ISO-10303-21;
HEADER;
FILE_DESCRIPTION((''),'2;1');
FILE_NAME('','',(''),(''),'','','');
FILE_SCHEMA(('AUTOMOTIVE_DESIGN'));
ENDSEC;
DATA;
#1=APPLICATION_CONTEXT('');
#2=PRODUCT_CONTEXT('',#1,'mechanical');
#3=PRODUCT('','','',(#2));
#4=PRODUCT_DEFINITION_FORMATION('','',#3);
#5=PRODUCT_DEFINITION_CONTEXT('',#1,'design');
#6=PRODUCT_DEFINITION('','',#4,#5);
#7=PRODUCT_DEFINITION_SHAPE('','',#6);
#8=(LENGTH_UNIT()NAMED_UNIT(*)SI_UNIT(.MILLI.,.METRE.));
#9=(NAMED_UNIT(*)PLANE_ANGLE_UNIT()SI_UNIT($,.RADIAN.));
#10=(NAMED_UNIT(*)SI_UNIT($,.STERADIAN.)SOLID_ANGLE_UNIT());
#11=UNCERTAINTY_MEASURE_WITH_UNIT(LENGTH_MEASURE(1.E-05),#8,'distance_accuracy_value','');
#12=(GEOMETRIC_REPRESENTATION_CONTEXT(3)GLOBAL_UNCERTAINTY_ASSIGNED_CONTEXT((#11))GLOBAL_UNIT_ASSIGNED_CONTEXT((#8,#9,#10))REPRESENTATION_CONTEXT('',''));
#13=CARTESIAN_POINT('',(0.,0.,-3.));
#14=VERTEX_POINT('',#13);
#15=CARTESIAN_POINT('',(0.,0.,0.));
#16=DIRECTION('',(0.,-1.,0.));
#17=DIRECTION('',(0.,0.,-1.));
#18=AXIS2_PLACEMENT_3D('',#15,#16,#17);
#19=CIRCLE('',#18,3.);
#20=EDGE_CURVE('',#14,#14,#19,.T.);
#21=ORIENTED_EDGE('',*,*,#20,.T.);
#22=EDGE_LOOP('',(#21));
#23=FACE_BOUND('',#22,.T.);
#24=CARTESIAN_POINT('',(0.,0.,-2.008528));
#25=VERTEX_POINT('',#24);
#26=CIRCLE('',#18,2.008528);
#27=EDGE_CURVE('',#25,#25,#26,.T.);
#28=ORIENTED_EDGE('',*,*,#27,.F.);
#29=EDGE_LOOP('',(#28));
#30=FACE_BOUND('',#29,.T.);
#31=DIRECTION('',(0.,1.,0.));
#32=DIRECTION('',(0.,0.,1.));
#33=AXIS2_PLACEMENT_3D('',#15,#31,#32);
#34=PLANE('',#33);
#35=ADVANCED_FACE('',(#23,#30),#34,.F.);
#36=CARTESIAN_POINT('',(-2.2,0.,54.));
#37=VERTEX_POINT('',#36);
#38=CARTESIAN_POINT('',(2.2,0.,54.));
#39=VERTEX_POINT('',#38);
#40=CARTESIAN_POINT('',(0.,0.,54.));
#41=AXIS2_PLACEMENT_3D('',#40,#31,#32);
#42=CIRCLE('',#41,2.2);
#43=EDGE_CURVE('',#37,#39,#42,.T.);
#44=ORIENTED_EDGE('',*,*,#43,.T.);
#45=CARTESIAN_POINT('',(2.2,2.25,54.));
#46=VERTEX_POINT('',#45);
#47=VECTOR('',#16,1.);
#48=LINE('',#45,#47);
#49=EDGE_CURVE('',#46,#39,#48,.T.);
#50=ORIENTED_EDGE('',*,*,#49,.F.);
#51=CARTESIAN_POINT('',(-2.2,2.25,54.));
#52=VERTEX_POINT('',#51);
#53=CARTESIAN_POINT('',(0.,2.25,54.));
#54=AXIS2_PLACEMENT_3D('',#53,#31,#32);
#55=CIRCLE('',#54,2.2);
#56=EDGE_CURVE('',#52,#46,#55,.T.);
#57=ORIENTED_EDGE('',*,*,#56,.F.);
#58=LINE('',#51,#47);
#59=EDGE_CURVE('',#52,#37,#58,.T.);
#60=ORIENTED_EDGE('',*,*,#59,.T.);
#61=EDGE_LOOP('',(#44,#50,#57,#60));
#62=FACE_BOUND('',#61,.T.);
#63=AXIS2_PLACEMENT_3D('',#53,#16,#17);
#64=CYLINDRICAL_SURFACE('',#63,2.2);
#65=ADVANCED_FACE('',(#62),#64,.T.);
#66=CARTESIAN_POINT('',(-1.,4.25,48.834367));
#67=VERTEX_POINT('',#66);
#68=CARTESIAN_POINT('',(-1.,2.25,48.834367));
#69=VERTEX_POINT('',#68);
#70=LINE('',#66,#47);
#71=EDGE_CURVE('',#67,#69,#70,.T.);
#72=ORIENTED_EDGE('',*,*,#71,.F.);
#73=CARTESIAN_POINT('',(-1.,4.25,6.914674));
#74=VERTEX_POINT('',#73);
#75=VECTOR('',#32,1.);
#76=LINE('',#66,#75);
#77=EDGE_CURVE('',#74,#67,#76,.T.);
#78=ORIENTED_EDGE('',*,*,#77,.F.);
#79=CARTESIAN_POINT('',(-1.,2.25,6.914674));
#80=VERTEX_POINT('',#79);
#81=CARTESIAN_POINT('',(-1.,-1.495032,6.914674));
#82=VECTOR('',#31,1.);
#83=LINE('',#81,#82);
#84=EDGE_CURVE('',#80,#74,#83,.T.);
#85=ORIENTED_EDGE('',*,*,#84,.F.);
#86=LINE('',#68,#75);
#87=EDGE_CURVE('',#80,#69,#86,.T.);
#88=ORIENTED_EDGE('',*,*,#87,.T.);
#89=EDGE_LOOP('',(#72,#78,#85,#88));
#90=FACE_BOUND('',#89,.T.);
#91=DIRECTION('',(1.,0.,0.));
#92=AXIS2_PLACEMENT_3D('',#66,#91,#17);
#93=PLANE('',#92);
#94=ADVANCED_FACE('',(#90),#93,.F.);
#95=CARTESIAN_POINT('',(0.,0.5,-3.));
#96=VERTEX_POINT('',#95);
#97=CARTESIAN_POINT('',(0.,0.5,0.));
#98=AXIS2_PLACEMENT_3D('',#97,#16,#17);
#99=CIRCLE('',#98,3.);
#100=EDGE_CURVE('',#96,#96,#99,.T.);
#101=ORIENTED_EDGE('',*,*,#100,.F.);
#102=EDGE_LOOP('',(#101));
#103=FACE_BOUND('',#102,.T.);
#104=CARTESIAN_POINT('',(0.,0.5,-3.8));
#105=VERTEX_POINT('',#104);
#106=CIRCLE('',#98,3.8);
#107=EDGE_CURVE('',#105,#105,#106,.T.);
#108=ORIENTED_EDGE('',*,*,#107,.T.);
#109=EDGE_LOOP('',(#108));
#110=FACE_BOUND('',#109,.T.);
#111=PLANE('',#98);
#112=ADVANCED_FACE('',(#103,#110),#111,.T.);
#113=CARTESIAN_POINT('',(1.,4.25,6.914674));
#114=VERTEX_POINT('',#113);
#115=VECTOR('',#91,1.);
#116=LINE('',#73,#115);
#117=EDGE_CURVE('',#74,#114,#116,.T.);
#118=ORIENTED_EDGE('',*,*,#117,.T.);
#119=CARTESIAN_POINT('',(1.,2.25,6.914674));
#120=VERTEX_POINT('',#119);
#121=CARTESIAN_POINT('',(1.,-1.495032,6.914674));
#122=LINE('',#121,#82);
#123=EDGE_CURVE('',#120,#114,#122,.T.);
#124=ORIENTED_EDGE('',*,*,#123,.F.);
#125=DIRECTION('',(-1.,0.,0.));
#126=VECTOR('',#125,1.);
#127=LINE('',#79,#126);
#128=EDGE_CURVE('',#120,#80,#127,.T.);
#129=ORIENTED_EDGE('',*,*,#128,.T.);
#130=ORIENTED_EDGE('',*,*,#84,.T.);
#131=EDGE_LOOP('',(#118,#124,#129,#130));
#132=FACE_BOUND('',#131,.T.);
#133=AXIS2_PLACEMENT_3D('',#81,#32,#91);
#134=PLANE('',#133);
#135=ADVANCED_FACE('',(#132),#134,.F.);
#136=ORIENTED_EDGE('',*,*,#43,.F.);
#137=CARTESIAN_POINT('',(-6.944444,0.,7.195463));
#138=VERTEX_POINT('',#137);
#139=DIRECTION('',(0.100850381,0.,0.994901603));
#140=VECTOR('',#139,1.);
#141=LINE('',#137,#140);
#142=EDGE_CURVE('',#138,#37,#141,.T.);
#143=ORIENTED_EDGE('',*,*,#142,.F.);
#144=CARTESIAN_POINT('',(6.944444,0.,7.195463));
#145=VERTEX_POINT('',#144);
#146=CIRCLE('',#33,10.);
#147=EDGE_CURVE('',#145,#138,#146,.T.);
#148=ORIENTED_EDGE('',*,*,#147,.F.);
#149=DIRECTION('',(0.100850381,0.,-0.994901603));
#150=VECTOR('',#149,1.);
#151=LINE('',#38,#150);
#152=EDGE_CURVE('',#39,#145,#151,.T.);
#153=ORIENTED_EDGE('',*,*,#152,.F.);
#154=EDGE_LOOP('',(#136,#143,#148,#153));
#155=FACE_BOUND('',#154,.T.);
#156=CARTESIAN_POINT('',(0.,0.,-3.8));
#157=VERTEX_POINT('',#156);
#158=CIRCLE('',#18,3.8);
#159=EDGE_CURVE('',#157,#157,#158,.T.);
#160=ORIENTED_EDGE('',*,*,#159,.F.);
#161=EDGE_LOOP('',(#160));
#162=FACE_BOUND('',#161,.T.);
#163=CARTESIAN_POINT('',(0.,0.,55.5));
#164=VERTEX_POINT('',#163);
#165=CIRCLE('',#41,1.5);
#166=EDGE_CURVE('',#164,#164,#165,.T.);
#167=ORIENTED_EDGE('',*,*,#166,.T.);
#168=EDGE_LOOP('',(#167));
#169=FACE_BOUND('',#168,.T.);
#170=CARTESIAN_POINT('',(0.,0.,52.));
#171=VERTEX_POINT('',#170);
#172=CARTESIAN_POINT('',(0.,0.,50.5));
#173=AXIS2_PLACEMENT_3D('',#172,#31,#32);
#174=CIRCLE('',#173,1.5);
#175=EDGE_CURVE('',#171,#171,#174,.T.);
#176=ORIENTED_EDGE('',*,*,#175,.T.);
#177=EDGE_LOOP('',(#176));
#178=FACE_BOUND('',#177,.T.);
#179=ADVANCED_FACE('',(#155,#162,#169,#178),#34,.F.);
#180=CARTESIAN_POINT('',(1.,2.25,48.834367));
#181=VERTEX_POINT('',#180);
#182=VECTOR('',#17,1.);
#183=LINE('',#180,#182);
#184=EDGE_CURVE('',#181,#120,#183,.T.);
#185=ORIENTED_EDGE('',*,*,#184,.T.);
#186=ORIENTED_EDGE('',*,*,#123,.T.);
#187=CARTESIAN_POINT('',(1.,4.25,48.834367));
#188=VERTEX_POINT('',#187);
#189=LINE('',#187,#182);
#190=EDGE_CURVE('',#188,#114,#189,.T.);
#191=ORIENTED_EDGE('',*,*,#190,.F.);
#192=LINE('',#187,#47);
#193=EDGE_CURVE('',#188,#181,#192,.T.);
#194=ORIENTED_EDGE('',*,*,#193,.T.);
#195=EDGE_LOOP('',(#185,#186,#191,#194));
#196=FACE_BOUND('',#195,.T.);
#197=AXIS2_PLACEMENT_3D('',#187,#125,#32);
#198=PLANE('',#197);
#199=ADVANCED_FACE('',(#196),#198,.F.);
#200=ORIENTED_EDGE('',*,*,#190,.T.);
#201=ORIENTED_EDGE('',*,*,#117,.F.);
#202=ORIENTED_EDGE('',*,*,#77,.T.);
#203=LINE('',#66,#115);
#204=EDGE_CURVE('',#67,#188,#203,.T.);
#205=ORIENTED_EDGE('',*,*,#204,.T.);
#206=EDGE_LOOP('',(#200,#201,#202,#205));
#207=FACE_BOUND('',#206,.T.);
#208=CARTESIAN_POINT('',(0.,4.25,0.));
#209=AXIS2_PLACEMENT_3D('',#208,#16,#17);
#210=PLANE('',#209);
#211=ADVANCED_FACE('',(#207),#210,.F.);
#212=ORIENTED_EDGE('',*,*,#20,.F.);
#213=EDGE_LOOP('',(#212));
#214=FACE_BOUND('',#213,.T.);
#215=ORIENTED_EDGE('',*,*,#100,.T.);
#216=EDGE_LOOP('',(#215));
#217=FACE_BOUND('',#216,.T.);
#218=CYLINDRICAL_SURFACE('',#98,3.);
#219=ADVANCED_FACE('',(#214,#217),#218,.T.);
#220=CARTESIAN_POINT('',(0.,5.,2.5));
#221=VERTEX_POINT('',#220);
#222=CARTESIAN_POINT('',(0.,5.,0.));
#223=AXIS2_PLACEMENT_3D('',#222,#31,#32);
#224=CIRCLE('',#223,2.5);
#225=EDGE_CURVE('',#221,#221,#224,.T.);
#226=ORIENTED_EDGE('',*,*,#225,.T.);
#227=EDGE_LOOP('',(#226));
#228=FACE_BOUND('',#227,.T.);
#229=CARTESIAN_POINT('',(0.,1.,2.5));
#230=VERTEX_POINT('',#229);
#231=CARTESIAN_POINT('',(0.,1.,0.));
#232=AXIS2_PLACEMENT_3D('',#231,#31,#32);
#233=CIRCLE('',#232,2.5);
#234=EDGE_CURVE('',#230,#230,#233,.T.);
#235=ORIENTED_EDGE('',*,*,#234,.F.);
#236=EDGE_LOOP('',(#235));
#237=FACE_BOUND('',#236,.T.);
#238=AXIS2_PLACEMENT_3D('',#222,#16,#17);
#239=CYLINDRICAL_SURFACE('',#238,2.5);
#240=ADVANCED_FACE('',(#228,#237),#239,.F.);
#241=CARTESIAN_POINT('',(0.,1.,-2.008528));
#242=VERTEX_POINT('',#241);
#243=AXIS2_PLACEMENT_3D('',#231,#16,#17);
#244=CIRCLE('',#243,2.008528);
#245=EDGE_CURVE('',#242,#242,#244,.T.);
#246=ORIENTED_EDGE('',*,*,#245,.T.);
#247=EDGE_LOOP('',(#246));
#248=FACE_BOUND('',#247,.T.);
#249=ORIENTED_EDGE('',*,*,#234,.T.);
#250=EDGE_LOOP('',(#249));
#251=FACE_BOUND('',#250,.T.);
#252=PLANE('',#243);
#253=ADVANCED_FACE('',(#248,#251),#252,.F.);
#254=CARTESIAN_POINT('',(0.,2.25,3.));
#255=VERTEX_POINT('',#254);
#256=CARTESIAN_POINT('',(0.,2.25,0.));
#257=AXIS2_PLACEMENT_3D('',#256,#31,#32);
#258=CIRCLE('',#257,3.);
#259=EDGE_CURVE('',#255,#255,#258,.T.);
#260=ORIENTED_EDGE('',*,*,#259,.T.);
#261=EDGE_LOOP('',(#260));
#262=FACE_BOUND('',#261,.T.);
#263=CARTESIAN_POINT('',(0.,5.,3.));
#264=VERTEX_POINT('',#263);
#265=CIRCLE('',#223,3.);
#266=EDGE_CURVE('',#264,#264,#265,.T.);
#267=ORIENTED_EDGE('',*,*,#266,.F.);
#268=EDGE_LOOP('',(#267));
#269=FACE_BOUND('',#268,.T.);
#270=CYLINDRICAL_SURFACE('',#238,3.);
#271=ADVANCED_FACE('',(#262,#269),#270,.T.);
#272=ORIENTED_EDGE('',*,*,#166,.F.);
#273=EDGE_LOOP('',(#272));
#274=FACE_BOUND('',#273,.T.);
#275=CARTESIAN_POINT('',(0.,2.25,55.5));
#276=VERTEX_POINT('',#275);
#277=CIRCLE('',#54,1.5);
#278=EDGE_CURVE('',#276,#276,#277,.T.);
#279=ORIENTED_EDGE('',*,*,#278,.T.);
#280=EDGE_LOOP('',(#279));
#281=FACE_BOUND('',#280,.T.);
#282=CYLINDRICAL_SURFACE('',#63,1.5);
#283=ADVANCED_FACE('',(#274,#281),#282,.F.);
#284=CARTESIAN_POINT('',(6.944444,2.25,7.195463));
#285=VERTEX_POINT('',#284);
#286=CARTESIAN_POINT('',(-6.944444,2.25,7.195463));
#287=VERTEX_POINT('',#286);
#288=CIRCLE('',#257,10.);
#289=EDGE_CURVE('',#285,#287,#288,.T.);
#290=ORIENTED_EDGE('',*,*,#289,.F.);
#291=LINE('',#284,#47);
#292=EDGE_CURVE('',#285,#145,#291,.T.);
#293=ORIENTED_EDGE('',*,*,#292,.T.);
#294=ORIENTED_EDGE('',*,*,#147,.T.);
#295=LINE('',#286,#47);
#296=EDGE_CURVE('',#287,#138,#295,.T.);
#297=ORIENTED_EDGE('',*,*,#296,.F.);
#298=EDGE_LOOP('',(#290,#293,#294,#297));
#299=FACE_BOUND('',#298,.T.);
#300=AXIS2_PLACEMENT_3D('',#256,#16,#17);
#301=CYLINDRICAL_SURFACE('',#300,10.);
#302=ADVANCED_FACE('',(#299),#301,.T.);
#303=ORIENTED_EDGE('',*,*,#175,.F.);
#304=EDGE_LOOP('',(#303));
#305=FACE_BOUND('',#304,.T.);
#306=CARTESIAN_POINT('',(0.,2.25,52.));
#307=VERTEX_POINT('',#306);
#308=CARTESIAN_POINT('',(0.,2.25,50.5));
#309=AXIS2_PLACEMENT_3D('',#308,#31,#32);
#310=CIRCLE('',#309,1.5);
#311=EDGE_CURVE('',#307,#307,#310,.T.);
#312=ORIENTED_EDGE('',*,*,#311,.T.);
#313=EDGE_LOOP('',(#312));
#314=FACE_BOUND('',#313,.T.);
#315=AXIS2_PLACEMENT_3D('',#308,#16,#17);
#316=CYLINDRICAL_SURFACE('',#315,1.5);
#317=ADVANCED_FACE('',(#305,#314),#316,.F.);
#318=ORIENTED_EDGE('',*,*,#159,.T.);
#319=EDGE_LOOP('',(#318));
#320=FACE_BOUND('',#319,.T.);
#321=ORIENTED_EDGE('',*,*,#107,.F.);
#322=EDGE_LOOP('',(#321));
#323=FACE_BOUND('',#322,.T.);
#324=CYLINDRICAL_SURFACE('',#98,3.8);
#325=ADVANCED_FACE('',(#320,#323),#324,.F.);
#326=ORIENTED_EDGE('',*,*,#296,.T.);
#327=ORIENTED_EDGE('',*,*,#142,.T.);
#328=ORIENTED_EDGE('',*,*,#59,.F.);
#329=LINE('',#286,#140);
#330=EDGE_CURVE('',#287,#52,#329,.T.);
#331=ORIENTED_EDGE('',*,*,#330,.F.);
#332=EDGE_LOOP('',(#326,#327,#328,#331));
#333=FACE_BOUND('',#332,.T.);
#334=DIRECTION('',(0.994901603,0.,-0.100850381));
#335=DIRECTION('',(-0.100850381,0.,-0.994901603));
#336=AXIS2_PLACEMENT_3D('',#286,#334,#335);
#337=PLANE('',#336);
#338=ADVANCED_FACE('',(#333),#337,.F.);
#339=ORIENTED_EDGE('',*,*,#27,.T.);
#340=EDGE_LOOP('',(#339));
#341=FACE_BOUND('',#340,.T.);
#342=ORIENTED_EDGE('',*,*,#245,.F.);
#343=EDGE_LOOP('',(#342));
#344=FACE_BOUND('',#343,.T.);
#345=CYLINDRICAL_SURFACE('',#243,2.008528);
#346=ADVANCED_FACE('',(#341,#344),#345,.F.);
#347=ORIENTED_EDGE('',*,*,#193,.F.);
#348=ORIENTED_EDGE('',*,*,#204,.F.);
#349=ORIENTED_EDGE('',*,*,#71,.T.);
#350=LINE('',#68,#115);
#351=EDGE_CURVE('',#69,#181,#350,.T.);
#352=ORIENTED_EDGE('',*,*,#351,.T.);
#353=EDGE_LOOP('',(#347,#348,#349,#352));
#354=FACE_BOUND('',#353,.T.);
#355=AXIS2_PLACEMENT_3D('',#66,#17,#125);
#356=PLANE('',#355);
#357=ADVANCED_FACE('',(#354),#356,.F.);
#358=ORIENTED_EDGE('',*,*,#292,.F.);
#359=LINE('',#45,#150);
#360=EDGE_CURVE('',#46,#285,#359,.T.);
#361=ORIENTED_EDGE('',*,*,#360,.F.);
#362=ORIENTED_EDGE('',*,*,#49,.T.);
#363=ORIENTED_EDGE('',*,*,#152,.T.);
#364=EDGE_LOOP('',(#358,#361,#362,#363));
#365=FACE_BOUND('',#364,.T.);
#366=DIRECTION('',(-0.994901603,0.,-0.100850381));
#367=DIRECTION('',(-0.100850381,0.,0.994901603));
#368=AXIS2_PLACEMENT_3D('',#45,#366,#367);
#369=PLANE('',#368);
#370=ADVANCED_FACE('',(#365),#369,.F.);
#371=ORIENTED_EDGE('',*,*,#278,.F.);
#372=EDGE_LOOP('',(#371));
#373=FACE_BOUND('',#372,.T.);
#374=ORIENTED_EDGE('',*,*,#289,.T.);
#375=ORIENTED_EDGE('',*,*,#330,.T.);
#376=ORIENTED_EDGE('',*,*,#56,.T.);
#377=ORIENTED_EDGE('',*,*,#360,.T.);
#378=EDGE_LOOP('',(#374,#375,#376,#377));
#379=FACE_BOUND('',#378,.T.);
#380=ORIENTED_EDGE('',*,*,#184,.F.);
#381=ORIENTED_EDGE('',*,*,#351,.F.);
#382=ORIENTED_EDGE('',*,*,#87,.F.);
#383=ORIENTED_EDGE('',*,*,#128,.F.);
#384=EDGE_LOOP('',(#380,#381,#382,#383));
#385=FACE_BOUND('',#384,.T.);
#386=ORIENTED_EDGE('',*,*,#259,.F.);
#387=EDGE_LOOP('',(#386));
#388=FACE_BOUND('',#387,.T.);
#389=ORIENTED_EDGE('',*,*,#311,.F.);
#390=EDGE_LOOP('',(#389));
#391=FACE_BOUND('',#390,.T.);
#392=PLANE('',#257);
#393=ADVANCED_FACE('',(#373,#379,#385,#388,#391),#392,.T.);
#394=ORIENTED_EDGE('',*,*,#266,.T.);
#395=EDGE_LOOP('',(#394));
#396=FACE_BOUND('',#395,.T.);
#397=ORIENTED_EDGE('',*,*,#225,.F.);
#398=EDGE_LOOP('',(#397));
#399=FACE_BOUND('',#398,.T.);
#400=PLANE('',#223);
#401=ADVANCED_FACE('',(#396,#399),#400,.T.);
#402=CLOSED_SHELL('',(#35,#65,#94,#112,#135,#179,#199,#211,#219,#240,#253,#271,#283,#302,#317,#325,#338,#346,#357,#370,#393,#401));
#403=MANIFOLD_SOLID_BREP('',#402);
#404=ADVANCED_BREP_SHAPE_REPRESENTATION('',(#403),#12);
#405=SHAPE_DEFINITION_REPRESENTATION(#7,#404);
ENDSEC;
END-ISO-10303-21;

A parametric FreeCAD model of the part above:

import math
import FreeCAD as App
import Part
import Sketcher
from FreeCAD import Vector
Q = App.Units.Quantity

doc = App.newDocument("Part")
params = doc.addObject("Spreadsheet::Sheet", "Params")
for row, (alias, value) in enumerate([
    ("sketch1_diameter", "3 mm"),
    ("sketch1_diameter2", "6 mm"),
    ("sketch1_radius", "10 mm"),
    ("sketch1_radius2", "2.2 mm"),
    ("pad1_length", "2.25 mm"),
    ("sketch2_radius", "2.360001 mm"),
    ("pad2_length", "2.25 mm"),
    ("sketch3_diameter", "6 mm"),
    ("pad3_length", "1 mm"),
    ("sketch4_diameter", "6 mm"),
    ("sketch4_diameter2", "7.6 mm"),
    ("pocket1_length", "0.5 mm"),
    ("sketch5_width", "2 mm"),
    ("pad4_length", "2 mm"),
    ("pocket2_length", "2.25 mm"),
    ("sketch7_diameter", "6 mm"),
    ("sketch7_diameter2", "5 mm"),
    ("pad5_length", "4 mm"),
    ("sketch8_width", "2 mm"),
    ("pocket3_length", "2 mm"),
], start=1):
    params.set(f"A{row}", alias)
    params.set(f"B{row}", "=" + value)
    params.setAlias(f"B{row}", alias)

body = doc.addObject("PartDesign::Body", "Body")

sketch1 = body.newObject("Sketcher::SketchObject", "Sketch")
sketch1.AttachmentSupport = (doc.getObject("XZ_Plane"), [""])
sketch1.MapMode = "FlatFace"
sketch1.addGeometry([
    Part.LineSegment(Vector(2.2, 54, 0), Vector(6.9, 7.2, 0)),
    Part.ArcOfCircle(Part.Circle(Vector(0, 0, 0), Vector(0, 0, 1), 10), math.radians(134), math.radians(406)),
    Part.LineSegment(Vector(-6.9, 7.2, 0), Vector(-2.2, 54, 0)),
    Part.ArcOfCircle(Part.Circle(Vector(0, 54, 0), Vector(0, 0, 1), 2.2), math.radians(0), math.radians(180)),
    Part.Circle(Vector(0, 54, 0), Vector(0, 0, 1), 1.5),
    Part.Circle(Vector(0, 50.5, 0), Vector(0, 0, 1), 1.5),
    Part.Circle(Vector(0, 0, 0), Vector(0, 0, 1), 3),
], False)
sketch1.addConstraint([
    Sketcher.Constraint("Coincident", 0, 2, 1, 2),
    Sketcher.Constraint("Coincident", 1, 1, 2, 1),
    Sketcher.Constraint("Coincident", 2, 2, 3, 2),
    Sketcher.Constraint("Coincident", 3, 1, 0, 1),
    Sketcher.Constraint("Coincident", 1, 3, -1, 1),
    Sketcher.Constraint("Coincident", 6, 3, -1, 1),
    Sketcher.Constraint("Coincident", 4, 3, 3, 3),
    Sketcher.Constraint("Equal", 4, 5),
    Sketcher.Constraint("Symmetric", 2, 2, 3, 1, -2),
    Sketcher.Constraint("PointOnObject", 5, 3, -2),
    Sketcher.Constraint("Horizontal", 0, 2, 1, 1),
    Sketcher.Constraint("Horizontal", 4, 3, 2, 2),
    Sketcher.Constraint("Diameter", 4, Q("3 mm")),
    Sketcher.Constraint("Diameter", 6, Q("6 mm")),
    Sketcher.Constraint("Radius", 1, Q("10 mm")),
    Sketcher.Constraint("Radius", 3, Q("2.2 mm")),
    Sketcher.Constraint("DistanceY", -1, 1, 3, 3, Q("54 mm")),
    Sketcher.Constraint("DistanceY", -1, 1, 5, 3, Q("50.5 mm")),
    Sketcher.Constraint("DistanceX", 1, 1, 0, 2, Q("13.888889 mm")),
])
sketch1.setExpression("Constraints[12]", "Params.sketch1_diameter")
sketch1.setExpression("Constraints[13]", "Params.sketch1_diameter2")
sketch1.setExpression("Constraints[14]", "Params.sketch1_radius")
sketch1.setExpression("Constraints[15]", "Params.sketch1_radius2")
pad1 = body.newObject("PartDesign::Pad", "Pad")
pad1.Profile = sketch1
pad1.setExpression("Length", "Params.pad1_length")
pad1.Reversed = True

sketch2 = body.newObject("Sketcher::SketchObject", "Sketch001")
sketch2.AttachmentSupport = (doc.getObject("XZ_Plane"), [""])
sketch2.MapMode = "FlatFace"
sketch2.AttachmentOffset = App.Placement(Vector(0, 0, -2.25), App.Rotation())
sketch2.addGeometry([
    Part.Circle(Vector(0, 0, 0), Vector(0, 0, 1), 3.88),
    Part.LineSegment(Vector(2.35, -0.22, 0), Vector(1.96, 0, 0)),
    Part.LineSegment(Vector(1.96, 0, 0), Vector(2.35, 0.22, 0)),
    Part.ArcOfCircle(Part.Circle(Vector(0, 0, 0), Vector(0, 0, 1), 2.36), math.radians(5.46), math.radians(8.94)),
    Part.LineSegment(Vector(2.33, 0.37, 0), Vector(1.9, 0.49, 0)),
    Part.LineSegment(Vector(1.9, 0.49, 0), Vector(2.22, 0.8, 0)),
    Part.ArcOfCircle(Part.Circle(Vector(0, 0, 0), Vector(0, 0, 1), 2.36), math.radians(19.86), math.radians(23.34)),
    Part.LineSegment(Vector(2.17, 0.93, 0), Vector(1.72, 0.94, 0)),
    Part.LineSegment(Vector(1.72, 0.94, 0), Vector(1.95, 1.33, 0)),
    Part.ArcOfCircle(Part.Circle(Vector(0, 0, 0), Vector(0, 0, 1), 2.36), math.radians(34.26), math.radians(37.74)),
    Part.LineSegment(Vector(1.87, 1.44, 0), Vector(1.43, 1.34, 0)),
    Part.LineSegment(Vector(1.43, 1.34, 0), Vector(1.56, 1.77, 0)),
    Part.ArcOfCircle(Part.Circle(Vector(0, 0, 0), Vector(0, 0, 1), 2.36), math.radians(48.66), math.radians(52.14)),
    Part.LineSegment(Vector(1.45, 1.86, 0), Vector(1.05, 1.65, 0)),
    Part.LineSegment(Vector(1.05, 1.65, 0), Vector(1.07, 2.1, 0)),
    Part.ArcOfCircle(Part.Circle(Vector(0, 0, 0), Vector(0, 0, 1), 2.36), math.radians(63.06), math.radians(66.54)),
    Part.LineSegment(Vector(0.94, 2.16, 0), Vector(0.61, 1.86, 0)),
    Part.LineSegment(Vector(0.61, 1.86, 0), Vector(0.51, 2.3, 0)),
    Part.ArcOfCircle(Part.Circle(Vector(0, 0, 0), Vector(0, 0, 1), 2.36), math.radians(77.46), math.radians(80.94)),
    Part.LineSegment(Vector(0.37, 2.33, 0), Vector(0.12, 1.96, 0)),
    Part.LineSegment(Vector(0.12, 1.96, 0), Vector(-0.08, 2.36, 0)),
    Part.ArcOfCircle(Part.Circle(Vector(0, 0, 0), Vector(0, 0, 1), 2.36), math.radians(91.86), math.radians(95.34)),
    Part.LineSegment(Vector(-0.22, 2.35, 0), Vector(-0.37, 1.93, 0)),
    Part.LineSegment(Vector(-0.37, 1.93, 0), Vector(-0.66, 2.27, 0)),
    Part.ArcOfCircle(Part.Circle(Vector(0, 0, 0), Vector(0, 0, 1), 2.36), math.radians(106.26), math.radians(109.74)),
    Part.LineSegment(Vector(-0.8, 2.22, 0), Vector(-0.83, 1.77, 0)),
    Part.LineSegment(Vector(-0.83, 1.77, 0), Vector(-1.2, 2.03, 0)),
    Part.ArcOfCircle(Part.Circle(Vector(0, 0, 0), Vector(0, 0, 1), 2.36), math.radians(120.66), math.radians(124.14)),
    Part.LineSegment(Vector(-1.32, 1.95, 0), Vector(-1.25, 1.51, 0)),
    Part.LineSegment(Vector(-1.25, 1.51, 0), Vector(-1.67, 1.67, 0)),
    Part.ArcOfCircle(Part.Circle(Vector(0, 0, 0), Vector(0, 0, 1), 2.36), math.radians(135.06), math.radians(138.54)),
    Part.LineSegment(Vector(-1.77, 1.56, 0), Vector(-1.59, 1.15, 0)),
    Part.LineSegment(Vector(-1.59, 1.15, 0), Vector(-2.03, 1.2, 0)),
    Part.ArcOfCircle(Part.Circle(Vector(0, 0, 0), Vector(0, 0, 1), 2.36), math.radians(149.46), math.radians(152.94)),
    Part.LineSegment(Vector(-2.1, 1.07, 0), Vector(-1.82, 0.72, 0)),
    Part.LineSegment(Vector(-1.82, 0.72, 0), Vector(-2.27, 0.66, 0)),
    Part.ArcOfCircle(Part.Circle(Vector(0, 0, 0), Vector(0, 0, 1), 2.36), math.radians(163.86), math.radians(167.34)),
    Part.LineSegment(Vector(-2.3, 0.52, 0), Vector(-1.94, 0.25, 0)),
    Part.LineSegment(Vector(-1.94, 0.25, 0), Vector(-2.36, 0.07, 0)),
    Part.ArcOfCircle(Part.Circle(Vector(0, 0, 0), Vector(0, 0, 1), 2.36), math.radians(178.26), math.radians(181.74)),
    Part.LineSegment(Vector(-2.36, -0.07, 0), Vector(-1.94, -0.25, 0)),
    Part.LineSegment(Vector(-1.94, -0.25, 0), Vector(-2.3, -0.52, 0)),
    Part.ArcOfCircle(Part.Circle(Vector(0, 0, 0), Vector(0, 0, 1), 2.36), math.radians(-167.34), math.radians(-163.86)),
    Part.LineSegment(Vector(-2.27, -0.66, 0), Vector(-1.82, -0.72, 0)),
    Part.LineSegment(Vector(-1.82, -0.72, 0), Vector(-2.1, -1.07, 0)),
    Part.ArcOfCircle(Part.Circle(Vector(0, 0, 0), Vector(0, 0, 1), 2.36), math.radians(-152.94), math.radians(-149.46)),
    Part.LineSegment(Vector(-2.03, -1.2, 0), Vector(-1.59, -1.15, 0)),
    Part.LineSegment(Vector(-1.59, -1.15, 0), Vector(-1.77, -1.56, 0)),
    Part.ArcOfCircle(Part.Circle(Vector(0, 0, 0), Vector(0, 0, 1), 2.36), math.radians(-138.54), math.radians(-135.06)),
    Part.LineSegment(Vector(-1.67, -1.67, 0), Vector(-1.25, -1.51, 0)),
    Part.LineSegment(Vector(-1.25, -1.51, 0), Vector(-1.32, -1.95, 0)),
    Part.ArcOfCircle(Part.Circle(Vector(0, 0, 0), Vector(0, 0, 1), 2.36), math.radians(-124.14), math.radians(-120.66)),
    Part.LineSegment(Vector(-1.2, -2.03, 0), Vector(-0.83, -1.77, 0)),
    Part.LineSegment(Vector(-0.83, -1.77, 0), Vector(-0.8, -2.22, 0)),
    Part.ArcOfCircle(Part.Circle(Vector(0, 0, 0), Vector(0, 0, 1), 2.36), math.radians(-109.74), math.radians(-106.26)),
    Part.LineSegment(Vector(-0.66, -2.27, 0), Vector(-0.37, -1.93, 0)),
    Part.LineSegment(Vector(-0.37, -1.93, 0), Vector(-0.22, -2.35, 0)),
    Part.ArcOfCircle(Part.Circle(Vector(0, 0, 0), Vector(0, 0, 1), 2.36), math.radians(-95.34), math.radians(-91.86)),
    Part.LineSegment(Vector(-0.08, -2.36, 0), Vector(0.12, -1.96, 0)),
    Part.LineSegment(Vector(0.12, -1.96, 0), Vector(0.37, -2.33, 0)),
    Part.ArcOfCircle(Part.Circle(Vector(0, 0, 0), Vector(0, 0, 1), 2.36), math.radians(-80.94), math.radians(-77.46)),
    Part.LineSegment(Vector(0.51, -2.3, 0), Vector(0.61, -1.86, 0)),
    Part.LineSegment(Vector(0.61, -1.86, 0), Vector(0.94, -2.16, 0)),
    Part.ArcOfCircle(Part.Circle(Vector(0, 0, 0), Vector(0, 0, 1), 2.36), math.radians(-66.54), math.radians(-63.06)),
    Part.LineSegment(Vector(1.07, -2.1, 0), Vector(1.05, -1.65, 0)),
    Part.LineSegment(Vector(1.05, -1.65, 0), Vector(1.45, -1.86, 0)),
    Part.ArcOfCircle(Part.Circle(Vector(0, 0, 0), Vector(0, 0, 1), 2.36), math.radians(-52.14), math.radians(-48.66)),
    Part.LineSegment(Vector(1.56, -1.77, 0), Vector(1.43, -1.34, 0)),
    Part.LineSegment(Vector(1.43, -1.34, 0), Vector(1.87, -1.44, 0)),
    Part.ArcOfCircle(Part.Circle(Vector(0, 0, 0), Vector(0, 0, 1), 2.36), math.radians(-37.74), math.radians(-34.26)),
    Part.LineSegment(Vector(1.95, -1.33, 0), Vector(1.72, -0.94, 0)),
    Part.LineSegment(Vector(1.72, -0.94, 0), Vector(2.17, -0.93, 0)),
    Part.ArcOfCircle(Part.Circle(Vector(0, 0, 0), Vector(0, 0, 1), 2.36), math.radians(-23.34), math.radians(-19.86)),
    Part.LineSegment(Vector(2.22, -0.8, 0), Vector(1.9, -0.49, 0)),
    Part.LineSegment(Vector(1.9, -0.49, 0), Vector(2.33, -0.37, 0)),
    Part.ArcOfCircle(Part.Circle(Vector(0, 0, 0), Vector(0, 0, 1), 2.36), math.radians(-8.94), math.radians(-5.46)),
], False)
sketch2.addConstraint([
    Sketcher.Constraint("Coincident", 1, 2, 2, 1),
    Sketcher.Constraint("Coincident", 2, 2, 3, 1),
    Sketcher.Constraint("Coincident", 3, 2, 4, 1),
    Sketcher.Constraint("Coincident", 4, 2, 5, 1),
    Sketcher.Constraint("Coincident", 5, 2, 6, 1),
    Sketcher.Constraint("Coincident", 6, 2, 7, 1),
    Sketcher.Constraint("Coincident", 7, 2, 8, 1),
    Sketcher.Constraint("Coincident", 8, 2, 9, 1),
    Sketcher.Constraint("Coincident", 9, 2, 10, 1),
    Sketcher.Constraint("Coincident", 10, 2, 11, 1),
    Sketcher.Constraint("Coincident", 11, 2, 12, 1),
    Sketcher.Constraint("Coincident", 12, 2, 13, 1),
    Sketcher.Constraint("Coincident", 13, 2, 14, 1),
    Sketcher.Constraint("Coincident", 14, 2, 15, 1),
    Sketcher.Constraint("Coincident", 15, 2, 16, 1),
    Sketcher.Constraint("Coincident", 16, 2, 17, 1),
    Sketcher.Constraint("Coincident", 17, 2, 18, 1),
    Sketcher.Constraint("Coincident", 18, 2, 19, 1),
    Sketcher.Constraint("Coincident", 19, 2, 20, 1),
    Sketcher.Constraint("Coincident", 20, 2, 21, 1),
    Sketcher.Constraint("Coincident", 21, 2, 22, 1),
    Sketcher.Constraint("Coincident", 22, 2, 23, 1),
    Sketcher.Constraint("Coincident", 23, 2, 24, 1),
    Sketcher.Constraint("Coincident", 24, 2, 25, 1),
    Sketcher.Constraint("Coincident", 25, 2, 26, 1),
    Sketcher.Constraint("Coincident", 26, 2, 27, 1),
    Sketcher.Constraint("Coincident", 27, 2, 28, 1),
    Sketcher.Constraint("Coincident", 28, 2, 29, 1),
    Sketcher.Constraint("Coincident", 29, 2, 30, 1),
    Sketcher.Constraint("Coincident", 30, 2, 31, 1),
    Sketcher.Constraint("Coincident", 31, 2, 32, 1),
    Sketcher.Constraint("Coincident", 32, 2, 33, 1),
    Sketcher.Constraint("Coincident", 33, 2, 34, 1),
    Sketcher.Constraint("Coincident", 34, 2, 35, 1),
    Sketcher.Constraint("Coincident", 35, 2, 36, 1),
    Sketcher.Constraint("Coincident", 36, 2, 37, 1),
    Sketcher.Constraint("Coincident", 37, 2, 38, 1),
    Sketcher.Constraint("Coincident", 38, 2, 39, 1),
    Sketcher.Constraint("Coincident", 39, 2, 40, 1),
    Sketcher.Constraint("Coincident", 40, 2, 41, 1),
    Sketcher.Constraint("Coincident", 41, 2, 42, 1),
    Sketcher.Constraint("Coincident", 42, 2, 43, 1),
    Sketcher.Constraint("Coincident", 43, 2, 44, 1),
    Sketcher.Constraint("Coincident", 44, 2, 45, 1),
    Sketcher.Constraint("Coincident", 45, 2, 46, 1),
    Sketcher.Constraint("Coincident", 46, 2, 47, 1),
    Sketcher.Constraint("Coincident", 47, 2, 48, 1),
    Sketcher.Constraint("Coincident", 48, 2, 49, 1),
    Sketcher.Constraint("Coincident", 49, 2, 50, 1),
    Sketcher.Constraint("Coincident", 50, 2, 51, 1),
    Sketcher.Constraint("Coincident", 51, 2, 52, 1),
    Sketcher.Constraint("Coincident", 52, 2, 53, 1),
    Sketcher.Constraint("Coincident", 53, 2, 54, 1),
    Sketcher.Constraint("Coincident", 54, 2, 55, 1),
    Sketcher.Constraint("Coincident", 55, 2, 56, 1),
    Sketcher.Constraint("Coincident", 56, 2, 57, 1),
    Sketcher.Constraint("Coincident", 57, 2, 58, 1),
    Sketcher.Constraint("Coincident", 58, 2, 59, 1),
    Sketcher.Constraint("Coincident", 59, 2, 60, 1),
    Sketcher.Constraint("Coincident", 60, 2, 61, 1),
    Sketcher.Constraint("Coincident", 61, 2, 62, 1),
    Sketcher.Constraint("Coincident", 62, 2, 63, 1),
    Sketcher.Constraint("Coincident", 63, 2, 64, 1),
    Sketcher.Constraint("Coincident", 64, 2, 65, 1),
    Sketcher.Constraint("Coincident", 65, 2, 66, 1),
    Sketcher.Constraint("Coincident", 66, 2, 67, 1),
    Sketcher.Constraint("Coincident", 67, 2, 68, 1),
    Sketcher.Constraint("Coincident", 68, 2, 69, 1),
    Sketcher.Constraint("Coincident", 69, 2, 70, 1),
    Sketcher.Constraint("Coincident", 70, 2, 71, 1),
    Sketcher.Constraint("Coincident", 71, 2, 72, 1),
    Sketcher.Constraint("Coincident", 72, 2, 73, 1),
    Sketcher.Constraint("Coincident", 73, 2, 74, 1),
    Sketcher.Constraint("Coincident", 74, 2, 75, 1),
    Sketcher.Constraint("Coincident", 75, 2, 1, 1),
    Sketcher.Constraint("Coincident", 0, 3, -1, 1),
    Sketcher.Constraint("Coincident", 3, 3, -1, 1),
    Sketcher.Constraint("Coincident", 6, 3, -1, 1),
    Sketcher.Constraint("Coincident", 9, 3, -1, 1),
    Sketcher.Constraint("Coincident", 12, 3, -1, 1),
    Sketcher.Constraint("Coincident", 15, 3, -1, 1),
    Sketcher.Constraint("Coincident", 18, 3, -1, 1),
    Sketcher.Constraint("Coincident", 21, 3, -1, 1),
    Sketcher.Constraint("Coincident", 24, 3, -1, 1),
    Sketcher.Constraint("Coincident", 27, 3, -1, 1),
    Sketcher.Constraint("Coincident", 30, 3, -1, 1),
    Sketcher.Constraint("Coincident", 33, 3, -1, 1),
    Sketcher.Constraint("Coincident", 36, 3, -1, 1),
    Sketcher.Constraint("Coincident", 39, 3, -1, 1),
    Sketcher.Constraint("Coincident", 42, 3, -1, 1),
    Sketcher.Constraint("Coincident", 45, 3, -1, 1),
    Sketcher.Constraint("Coincident", 48, 3, -1, 1),
    Sketcher.Constraint("Coincident", 51, 3, -1, 1),
    Sketcher.Constraint("Coincident", 54, 3, -1, 1),
    Sketcher.Constraint("Coincident", 57, 3, -1, 1),
    Sketcher.Constraint("Coincident", 60, 3, -1, 1),
    Sketcher.Constraint("Coincident", 63, 3, -1, 1),
    Sketcher.Constraint("Coincident", 66, 3, -1, 1),
    Sketcher.Constraint("Coincident", 69, 3, -1, 1),
    Sketcher.Constraint("Coincident", 72, 3, -1, 1),
    Sketcher.Constraint("Coincident", 75, 3, -1, 1),
    Sketcher.Constraint("Equal", 6, 9),
    Sketcher.Constraint("Equal", 9, 12),
    Sketcher.Constraint("Equal", 12, 15),
    Sketcher.Constraint("Equal", 15, 18),
    Sketcher.Constraint("Equal", 18, 21),
    Sketcher.Constraint("Equal", 21, 24),
    Sketcher.Constraint("Equal", 24, 27),
    Sketcher.Constraint("Equal", 27, 30),
    Sketcher.Constraint("Equal", 30, 33),
    Sketcher.Constraint("Equal", 33, 36),
    Sketcher.Constraint("Equal", 36, 39),
    Sketcher.Constraint("Equal", 39, 42),
    Sketcher.Constraint("Equal", 42, 45),
    Sketcher.Constraint("Equal", 45, 48),
    Sketcher.Constraint("Equal", 48, 51),
    Sketcher.Constraint("Equal", 51, 54),
    Sketcher.Constraint("Equal", 54, 57),
    Sketcher.Constraint("Equal", 57, 60),
    Sketcher.Constraint("Equal", 60, 63),
    Sketcher.Constraint("Equal", 63, 66),
    Sketcher.Constraint("Equal", 66, 69),
    Sketcher.Constraint("Equal", 69, 72),
    Sketcher.Constraint("Equal", 69, 75),
    Sketcher.Constraint("Symmetric", 37, 2, 40, 2, -1),
    Sketcher.Constraint("Symmetric", 34, 2, 43, 2, -1),
    Sketcher.Constraint("Symmetric", 31, 2, 46, 2, -1),
    Sketcher.Constraint("Symmetric", 28, 2, 49, 2, -1),
    Sketcher.Constraint("Symmetric", 25, 2, 52, 2, -1),
    Sketcher.Constraint("Symmetric", 22, 2, 55, 2, -1),
    Sketcher.Constraint("Symmetric", 19, 2, 58, 2, -1),
    Sketcher.Constraint("Symmetric", 16, 2, 61, 2, -1),
    Sketcher.Constraint("Symmetric", 13, 2, 64, 2, -1),
    Sketcher.Constraint("Symmetric", 10, 2, 67, 2, -1),
    Sketcher.Constraint("Symmetric", 7, 2, 70, 2, -1),
    Sketcher.Constraint("Symmetric", 4, 2, 73, 2, -1),
    Sketcher.Constraint("Symmetric", 3, 2, 74, 2, -1),
    Sketcher.Constraint("PointOnObject", 1, 2, -1),
    Sketcher.Constraint("Vertical", 38, 2, 39, 2),
    Sketcher.Constraint("Vertical", 36, 2, 41, 2),
    Sketcher.Constraint("Vertical", 35, 2, 42, 2),
    Sketcher.Constraint("Vertical", 33, 2, 44, 2),
    Sketcher.Constraint("Vertical", 32, 2, 45, 2),
    Sketcher.Constraint("Vertical", 30, 2, 47, 2),
    Sketcher.Constraint("Vertical", 29, 2, 48, 2),
    Sketcher.Constraint("Vertical", 27, 2, 50, 2),
    Sketcher.Constraint("Vertical", 26, 2, 51, 2),
    Sketcher.Constraint("Vertical", 24, 2, 53, 2),
    Sketcher.Constraint("Vertical", 23, 2, 54, 2),
    Sketcher.Constraint("Vertical", 21, 2, 56, 2),
    Sketcher.Constraint("Vertical", 20, 2, 57, 2),
    Sketcher.Constraint("Vertical", 18, 2, 59, 2),
    Sketcher.Constraint("Vertical", 17, 2, 60, 2),
    Sketcher.Constraint("Vertical", 15, 2, 62, 2),
    Sketcher.Constraint("Vertical", 14, 2, 63, 2),
    Sketcher.Constraint("Vertical", 12, 2, 65, 2),
    Sketcher.Constraint("Vertical", 11, 2, 66, 2),
    Sketcher.Constraint("Vertical", 9, 2, 68, 2),
    Sketcher.Constraint("Vertical", 8, 2, 69, 2),
    Sketcher.Constraint("Vertical", 6, 2, 71, 2),
    Sketcher.Constraint("Vertical", 5, 2, 72, 2),
    Sketcher.Constraint("Vertical", 2, 2, 75, 2),
    Sketcher.Constraint("Equal", 2, 4),
    Sketcher.Constraint("Equal", 4, 5),
    Sketcher.Constraint("Equal", 5, 7),
    Sketcher.Constraint("Equal", 7, 8),
    Sketcher.Constraint("Equal", 8, 10),
    Sketcher.Constraint("Equal", 10, 11),
    Sketcher.Constraint("Equal", 11, 13),
    Sketcher.Constraint("Equal", 13, 14),
    Sketcher.Constraint("Equal", 14, 16),
    Sketcher.Constraint("Equal", 16, 17),
    Sketcher.Constraint("Equal", 17, 19),
    Sketcher.Constraint("Equal", 19, 20),
    Sketcher.Constraint("Equal", 20, 22),
    Sketcher.Constraint("Equal", 22, 23),
    Sketcher.Constraint("Equal", 23, 25),
    Sketcher.Constraint("Equal", 25, 26),
    Sketcher.Constraint("Equal", 26, 28),
    Sketcher.Constraint("Equal", 28, 29),
    Sketcher.Constraint("Equal", 29, 31),
    Sketcher.Constraint("Equal", 31, 32),
    Sketcher.Constraint("Equal", 32, 34),
    Sketcher.Constraint("Equal", 34, 35),
    Sketcher.Constraint("Equal", 35, 37),
    Sketcher.Constraint("Equal", 37, 38),
    Sketcher.Constraint("Angle", 1, Q("150 deg")),
    Sketcher.Constraint("Angle", 16, Q("-138 deg")),
    Sketcher.Constraint("Angle", 17, Q("102 deg")),
    Sketcher.Constraint("Angle", 31, Q("-66 deg")),
    Sketcher.Constraint("Angle", 32, Q("174 deg")),
    Sketcher.Constraint("Radius", 3, Q("2.360001 mm")),
    Sketcher.Constraint("Angle", 4, Q("164.4 deg")),
    Sketcher.Constraint("Angle", 5, Q("44.4 deg")),
    Sketcher.Constraint("Angle", 7, Q("178.8 deg")),
    Sketcher.Constraint("Angle", 8, Q("58.8 deg")),
    Sketcher.Constraint("Angle", 10, Q("-166.8 deg")),
    Sketcher.Constraint("Angle", 11, Q("73.2 deg")),
    Sketcher.Constraint("Angle", 13, Q("-152.4 deg")),
    Sketcher.Constraint("Angle", 14, Q("87.6 deg")),
    Sketcher.Constraint("Angle", 19, Q("-123.6 deg")),
    Sketcher.Constraint("Angle", 20, Q("116.4 deg")),
    Sketcher.Constraint("Angle", 22, Q("-109.2 deg")),
    Sketcher.Constraint("Angle", 23, Q("130.8 deg")),
    Sketcher.Constraint("Angle", 25, Q("-94.8 deg")),
    Sketcher.Constraint("Angle", 26, Q("145.2 deg")),
    Sketcher.Constraint("Angle", 28, Q("-80.4 deg")),
    Sketcher.Constraint("Angle", 29, Q("159.6 deg")),
    Sketcher.Constraint("Angle", 34, Q("-51.6 deg")),
    Sketcher.Constraint("Angle", 35, Q("-171.6 deg")),
    Sketcher.Constraint("Angle", 37, Q("-37.2 deg")),
    Sketcher.Constraint("Angle", 38, Q("-157.2 deg")),
    Sketcher.Constraint("DistanceX", -1, 1, 1, 2, Q("1.96 mm")),
    Sketcher.Constraint("Diameter", 0, Q("7.759004 mm")),
])
sketch2.setExpression("Constraints[191]", "Params.sketch2_radius")
pad2 = body.newObject("PartDesign::Pad", "Pad001")
pad2.Profile = sketch2
pad2.setExpression("Length", "Params.pad2_length")
pad2.Reversed = True

sketch3 = body.newObject("Sketcher::SketchObject", "Sketch002")
sketch3.AttachmentSupport = (doc.getObject("XZ_Plane"), [""])
sketch3.MapMode = "FlatFace"
sketch3.addGeometry([
    Part.Circle(Vector(0, 0, 0), Vector(0, 0, 1), 3),
    Part.Circle(Vector(0, 0, 0), Vector(0, 0, 1), 2),
], False)
sketch3.addConstraint([
    Sketcher.Constraint("Coincident", 0, 3, -1, 1),
    Sketcher.Constraint("Coincident", 1, 3, -1, 1),
    Sketcher.Constraint("Diameter", 0, Q("6 mm")),
    Sketcher.Constraint("Diameter", 1, Q("4.017056 mm")),
])
sketch3.setExpression("Constraints[2]", "Params.sketch3_diameter")
pad3 = body.newObject("PartDesign::Pad", "Pad002")
pad3.Profile = sketch3
pad3.setExpression("Length", "Params.pad3_length")
pad3.Reversed = True

sketch4 = body.newObject("Sketcher::SketchObject", "Sketch003")
sketch4.AttachmentSupport = (doc.getObject("XZ_Plane"), [""])
sketch4.MapMode = "FlatFace"
sketch4.addGeometry([
    Part.Circle(Vector(0, 0, 0), Vector(0, 0, 1), 3.8),
    Part.Circle(Vector(0, 0, 0), Vector(0, 0, 1), 3),
], False)
sketch4.addConstraint([
    Sketcher.Constraint("Coincident", 0, 3, -1, 1),
    Sketcher.Constraint("Coincident", 1, 3, -1, 1),
    Sketcher.Constraint("Diameter", 1, Q("6 mm")),
    Sketcher.Constraint("Diameter", 0, Q("7.6 mm")),
])
sketch4.setExpression("Constraints[2]", "Params.sketch4_diameter")
sketch4.setExpression("Constraints[3]", "Params.sketch4_diameter2")
pocket1 = body.newObject("PartDesign::Pocket", "Pocket")
pocket1.Profile = sketch4
pocket1.setExpression("Length", "Params.pocket1_length")

sketch5 = body.newObject("Sketcher::SketchObject", "Sketch004")
sketch5.AttachmentSupport = (doc.getObject("XZ_Plane"), [""])
sketch5.MapMode = "FlatFace"
sketch5.AttachmentOffset = App.Placement(Vector(0, 0, -2.25), App.Rotation())
sketch5.addGeometry([
    Part.LineSegment(Vector(-1, 3.7, 0), Vector(-1, 48.8, 0)),
    Part.LineSegment(Vector(-1, 48.8, 0), Vector(1, 48.8, 0)),
    Part.LineSegment(Vector(1, 48.8, 0), Vector(1, 3.7, 0)),
    Part.LineSegment(Vector(1, 3.7, 0), Vector(-1, 3.7, 0)),
], False)
sketch5.addConstraint([
    Sketcher.Constraint("Coincident", 0, 2, 1, 1),
    Sketcher.Constraint("Coincident", 1, 2, 2, 1),
    Sketcher.Constraint("Coincident", 2, 2, 3, 1),
    Sketcher.Constraint("Coincident", 3, 2, 0, 1),
    Sketcher.Constraint("Vertical", 0),
    Sketcher.Constraint("Horizontal", 1),
    Sketcher.Constraint("Vertical", 2),
    Sketcher.Constraint("Horizontal", 3),
    Sketcher.Constraint("DistanceX", 1, 1, 1, 2, Q("2 mm")),
    Sketcher.Constraint("DistanceX", 0, 2, -1, 1, Q("1 mm")),
    Sketcher.Constraint("DistanceY", 0, 1, 0, 2, Q("45.085963 mm")),
    Sketcher.Constraint("DistanceY", -1, 1, 0, 2, Q("48.834367 mm")),
])
sketch5.setExpression("Constraints[8]", "Params.sketch5_width")
pad4 = body.newObject("PartDesign::Pad", "Pad003")
pad4.Profile = sketch5
pad4.setExpression("Length", "Params.pad4_length")
pad4.Reversed = True

sketch6 = body.newObject("Sketcher::SketchObject", "Sketch005")
sketch6.AttachmentSupport = (doc.getObject("XZ_Plane"), [""])
sketch6.MapMode = "FlatFace"
sketch6.AttachmentOffset = App.Placement(Vector(0, 0, -2.25), App.Rotation())
sketch6.addGeometry(Part.Circle(Vector(0, 0, 0), Vector(0, 0, 1), 3.9), False)
sketch6.addConstraint([
    Sketcher.Constraint("Coincident", 0, 3, -1, 1),
    Sketcher.Constraint("Diameter", 0, Q("7.759004 mm")),
])
pocket2 = body.newObject("PartDesign::Pocket", "Pocket001")
pocket2.Profile = sketch6
pocket2.setExpression("Length", "Params.pocket2_length")

sketch7 = body.newObject("Sketcher::SketchObject", "Sketch006")
sketch7.AttachmentSupport = (doc.getObject("XZ_Plane"), [""])
sketch7.MapMode = "FlatFace"
sketch7.AttachmentOffset = App.Placement(Vector(0, 0, -1), App.Rotation())
sketch7.addGeometry([
    Part.Circle(Vector(0, 0, 0), Vector(0, 0, 1), 3),
    Part.Circle(Vector(0, 0, 0), Vector(0, 0, 1), 2.5),
], False)
sketch7.addConstraint([
    Sketcher.Constraint("Coincident", 0, 3, -1, 1),
    Sketcher.Constraint("Coincident", 1, 3, -1, 1),
    Sketcher.Constraint("Diameter", 0, Q("6 mm")),
    Sketcher.Constraint("Diameter", 1, Q("5 mm")),
])
sketch7.setExpression("Constraints[2]", "Params.sketch7_diameter")
sketch7.setExpression("Constraints[3]", "Params.sketch7_diameter2")
pad5 = body.newObject("PartDesign::Pad", "Pad004")
pad5.Profile = sketch7
pad5.setExpression("Length", "Params.pad5_length")
pad5.Reversed = True

sketch8 = body.newObject("Sketcher::SketchObject", "Sketch007")
sketch8.AttachmentSupport = (doc.getObject("XZ_Plane"), [""])
sketch8.MapMode = "FlatFace"
sketch8.AttachmentOffset = App.Placement(Vector(0, 0, -4.25), App.Rotation())
sketch8.addGeometry([
    Part.LineSegment(Vector(-1, 3.7, 0), Vector(-1, 6.9, 0)),
    Part.LineSegment(Vector(-1, 6.9, 0), Vector(1, 6.9, 0)),
    Part.LineSegment(Vector(1, 6.9, 0), Vector(1, 3.7, 0)),
    Part.LineSegment(Vector(1, 3.7, 0), Vector(-1, 3.7, 0)),
], False)
sketch8.addConstraint([
    Sketcher.Constraint("Coincident", 0, 2, 1, 1),
    Sketcher.Constraint("Coincident", 1, 2, 2, 1),
    Sketcher.Constraint("Coincident", 2, 2, 3, 1),
    Sketcher.Constraint("Coincident", 3, 2, 0, 1),
    Sketcher.Constraint("Vertical", 0),
    Sketcher.Constraint("Horizontal", 1),
    Sketcher.Constraint("Vertical", 2),
    Sketcher.Constraint("Horizontal", 3),
    Sketcher.Constraint("DistanceX", 1, 1, 1, 2, Q("2 mm")),
    Sketcher.Constraint("DistanceX", 0, 2, -1, 1, Q("1 mm")),
    Sketcher.Constraint("DistanceY", 0, 1, 0, 2, Q("3.16627 mm")),
    Sketcher.Constraint("DistanceY", -1, 1, 0, 2, Q("6.914674 mm")),
])
sketch8.setExpression("Constraints[8]", "Params.sketch8_width")
pocket3 = body.newObject("PartDesign::Pocket", "Pocket002")
pocket3.Profile = sketch8
pocket3.setExpression("Length", "Params.pocket3_length")
pocket3.Reversed = True

doc.recompute()
